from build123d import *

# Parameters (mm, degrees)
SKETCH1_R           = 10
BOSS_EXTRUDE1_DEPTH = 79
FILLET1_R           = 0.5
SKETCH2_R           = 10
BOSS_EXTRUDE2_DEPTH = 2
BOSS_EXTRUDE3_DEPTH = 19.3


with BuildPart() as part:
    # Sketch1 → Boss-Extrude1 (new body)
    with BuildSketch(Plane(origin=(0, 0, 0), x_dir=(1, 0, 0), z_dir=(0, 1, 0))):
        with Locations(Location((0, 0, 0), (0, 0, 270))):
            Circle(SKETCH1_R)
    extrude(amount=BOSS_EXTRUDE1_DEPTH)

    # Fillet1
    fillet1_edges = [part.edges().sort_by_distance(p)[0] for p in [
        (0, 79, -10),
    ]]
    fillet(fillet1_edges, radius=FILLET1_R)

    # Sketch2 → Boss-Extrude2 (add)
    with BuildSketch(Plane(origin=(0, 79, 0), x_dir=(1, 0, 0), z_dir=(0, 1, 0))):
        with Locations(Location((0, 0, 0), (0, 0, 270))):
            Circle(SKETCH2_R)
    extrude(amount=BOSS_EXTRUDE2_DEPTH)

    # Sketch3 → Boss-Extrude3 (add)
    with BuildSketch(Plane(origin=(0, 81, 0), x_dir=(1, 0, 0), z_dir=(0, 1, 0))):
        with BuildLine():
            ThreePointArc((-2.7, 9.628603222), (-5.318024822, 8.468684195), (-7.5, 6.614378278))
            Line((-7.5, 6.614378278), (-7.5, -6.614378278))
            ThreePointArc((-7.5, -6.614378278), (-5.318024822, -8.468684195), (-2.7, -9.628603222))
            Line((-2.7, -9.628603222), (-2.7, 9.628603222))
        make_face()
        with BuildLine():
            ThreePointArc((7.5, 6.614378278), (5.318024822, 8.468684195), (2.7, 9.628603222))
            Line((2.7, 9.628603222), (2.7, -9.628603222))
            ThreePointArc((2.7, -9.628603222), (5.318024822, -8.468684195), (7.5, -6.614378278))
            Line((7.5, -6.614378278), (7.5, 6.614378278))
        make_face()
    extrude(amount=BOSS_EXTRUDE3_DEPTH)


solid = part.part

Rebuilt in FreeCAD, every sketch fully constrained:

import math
import FreeCAD as App
import Part
import Sketcher


def edges_at(feature, points):
    """Names of the edges that pass closest to the given points."""
    edges = feature.Shape.Edges
    near = lambda p: min(range(len(edges)), key=lambda i: edges[i].distToShape(Part.Vertex(*p))[0])
    return sorted({f"Edge{near(p) + 1}" for p in points})

doc = App.newDocument("Part")
body = doc.addObject("PartDesign::Body", "Body")

sketch1 = body.newObject("Sketcher::SketchObject", "Sketch")
sketch1.AttachmentSupport = (doc.getObject("XZ_Plane"), [""])
sketch1.MapMode = "FlatFace"
sketch1.addGeometry(Part.Circle(App.Vector(0, 0, 0), App.Vector(0, 0, 1), 10), False)
sketch1.addConstraint([
    Sketcher.Constraint("Coincident", 0, 3, -1, 1),
    Sketcher.Constraint("Diameter", 0, 20.0),
])
pad1 = body.newObject("PartDesign::Pad", "Pad")
pad1.Profile = sketch1
pad1.Length = 79
pad1.Reversed = True
doc.recompute()

fillet = body.newObject("PartDesign::Fillet", "Fillet")
fillet.Base = (pad1, edges_at(pad1, [(0, 79, -10)]))
fillet.Radius = 0.5

sketch2 = body.newObject("Sketcher::SketchObject", "Sketch001")
sketch2.AttachmentSupport = (doc.getObject("XZ_Plane"), [""])
sketch2.MapMode = "FlatFace"
sketch2.AttachmentOffset = App.Placement(App.Vector(0, 0, -79), App.Rotation())
sketch2.addGeometry(Part.Circle(App.Vector(0, 0, 0), App.Vector(0, 0, 1), 10), False)
sketch2.addConstraint([
    Sketcher.Constraint("Coincident", 0, 3, -1, 1),
    Sketcher.Constraint("Diameter", 0, 20.0),
])
pad2 = body.newObject("PartDesign::Pad", "Pad001")
pad2.Profile = sketch2
pad2.Length = 2
pad2.Reversed = True

sketch3 = body.newObject("Sketcher::SketchObject", "Sketch002")
sketch3.AttachmentSupport = (doc.getObject("XZ_Plane"), [""])
sketch3.MapMode = "FlatFace"
sketch3.AttachmentOffset = App.Placement(App.Vector(0, 0, -81), App.Rotation())
sketch3.addGeometry([
    Part.ArcOfCircle(Part.Circle(App.Vector(0, 0, 0), App.Vector(0, 0, 1), 10), math.radians(-139), math.radians(-106)),
    Part.LineSegment(App.Vector(-8, -7, 0), App.Vector(-8, 7, 0)),
    Part.ArcOfCircle(Part.Circle(App.Vector(0, 0, 0), App.Vector(0, 0, 1), 10), math.radians(106), math.radians(139)),
    Part.LineSegment(App.Vector(-3, 10, 0), App.Vector(-3, -10, 0)),
    Part.ArcOfCircle(Part.Circle(App.Vector(0, 0, 0), App.Vector(0, 0, 1), 10), math.radians(-74), math.radians(-41)),
    Part.LineSegment(App.Vector(3, -10, 0), App.Vector(3, 10, 0)),
    Part.ArcOfCircle(Part.Circle(App.Vector(0, 0, 0), App.Vector(0, 0, 1), 10), math.radians(41), math.radians(74)),
    Part.LineSegment(App.Vector(8, 7, 0), App.Vector(8, -7, 0)),
], False)
sketch3.addConstraint([
    Sketcher.Constraint("Coincident", 0, 1, 1, 1),
    Sketcher.Constraint("Coincident", 1, 2, 2, 2),
    Sketcher.Constraint("Coincident", 2, 1, 3, 1),
    Sketcher.Constraint("Coincident", 3, 2, 0, 2),
    Sketcher.Constraint("Coincident", 4, 1, 5, 1),
    Sketcher.Constraint("Coincident", 5, 2, 6, 2),
    Sketcher.Constraint("Coincident", 6, 1, 7, 1),
    Sketcher.Constraint("Coincident", 7, 2, 4, 2),
    Sketcher.Constraint("Vertical", 1),
    Sketcher.Constraint("Vertical", 3),
    Sketcher.Constraint("Vertical", 5),
    Sketcher.Constraint("Vertical", 7),
    Sketcher.Constraint("Coincident", 0, 3, -1, 1),
    Sketcher.Constraint("Coincident", 2, 3, -1, 1),
    Sketcher.Constraint("Coincident", 4, 3, -1, 1),
    Sketcher.Constraint("Coincident", 6, 3, -1, 1),
    Sketcher.Constraint("Equal", 0, 2),
    Sketcher.Constraint("Equal", 2, 4),
    Sketcher.Constraint("Equal", 4, 6),
    Sketcher.Constraint("Horizontal", 3, 2, 4, 1),
    Sketcher.Constraint("Horizontal", 1, 2, 6, 1),
    Sketcher.Constraint("Radius", 0, 10.0),
    Sketcher.Constraint("DistanceX", 0, 1, -1, 1, 7.5),
    Sketcher.Constraint("DistanceX", 2, 1, -1, 1, 2.7),
])
pad3 = body.newObject("PartDesign::Pad", "Pad002")
pad3.Profile = sketch3
pad3.Length = 19.3
pad3.Reversed = True

doc.recompute()
